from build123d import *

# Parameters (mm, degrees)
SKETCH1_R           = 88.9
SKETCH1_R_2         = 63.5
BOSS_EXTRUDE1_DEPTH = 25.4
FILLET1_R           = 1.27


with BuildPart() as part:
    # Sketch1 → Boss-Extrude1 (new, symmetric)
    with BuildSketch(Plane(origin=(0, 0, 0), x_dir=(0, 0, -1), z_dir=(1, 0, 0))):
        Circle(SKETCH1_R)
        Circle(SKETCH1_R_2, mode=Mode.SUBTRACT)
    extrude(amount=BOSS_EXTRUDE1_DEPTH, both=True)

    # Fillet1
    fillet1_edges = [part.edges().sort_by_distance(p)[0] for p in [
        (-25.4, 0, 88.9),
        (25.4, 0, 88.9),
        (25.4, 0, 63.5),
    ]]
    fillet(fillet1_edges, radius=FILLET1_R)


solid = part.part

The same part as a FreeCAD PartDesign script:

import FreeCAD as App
import Part
import Sketcher

V = App.Vector
Q = App.Units.Quantity


def edges_at(feature, points):
    """Names of the edges that pass closest to the given points."""
    edges = feature.Shape.Edges
    near = lambda p: min(range(len(edges)), key=lambda i: edges[i].distToShape(Part.Vertex(*p))[0])
    return sorted({f"Edge{near(p) + 1}" for p in points})

doc = App.newDocument("Part")
body = doc.addObject("PartDesign::Body", "Body")

# Sketch on YZ plane
sketch1 = body.newObject("Sketcher::SketchObject", "Sketch")
sketch1.AttachmentSupport = (doc.getObject("YZ_Plane"), [""])
sketch1.MapMode = "FlatFace"
sketch1.addGeometry([
    Part.Circle(V(0, 0, 0), V(0, 0, 1), 89),
    Part.Circle(V(0, 0, 0), V(0, 0, 1), 64),
], False)
sketch1.addConstraint([
    Sketcher.Constraint("Coincident", 0, 3, -1, 1),
    Sketcher.Constraint("Coincident", 1, 3, -1, 1),
    Sketcher.Constraint("Diameter", 0, Q("7 in")),
    Sketcher.Constraint("Diameter", 1, Q("5 in")),
])
pad1 = body.newObject("PartDesign::Pad", "Pad")
pad1.Profile = sketch1
pad1.Length = Q("2 in")
pad1.Midplane = True
doc.recompute()

fillet = body.newObject("PartDesign::Fillet", "Fillet")
fillet.Base = (pad1, edges_at(pad1, [(-25.4, 0, 88.9), (25.4, 0, 88.9), (25.4, 0, 63.5)]))
fillet.Radius = Q("0.05 in")

doc.recompute()
